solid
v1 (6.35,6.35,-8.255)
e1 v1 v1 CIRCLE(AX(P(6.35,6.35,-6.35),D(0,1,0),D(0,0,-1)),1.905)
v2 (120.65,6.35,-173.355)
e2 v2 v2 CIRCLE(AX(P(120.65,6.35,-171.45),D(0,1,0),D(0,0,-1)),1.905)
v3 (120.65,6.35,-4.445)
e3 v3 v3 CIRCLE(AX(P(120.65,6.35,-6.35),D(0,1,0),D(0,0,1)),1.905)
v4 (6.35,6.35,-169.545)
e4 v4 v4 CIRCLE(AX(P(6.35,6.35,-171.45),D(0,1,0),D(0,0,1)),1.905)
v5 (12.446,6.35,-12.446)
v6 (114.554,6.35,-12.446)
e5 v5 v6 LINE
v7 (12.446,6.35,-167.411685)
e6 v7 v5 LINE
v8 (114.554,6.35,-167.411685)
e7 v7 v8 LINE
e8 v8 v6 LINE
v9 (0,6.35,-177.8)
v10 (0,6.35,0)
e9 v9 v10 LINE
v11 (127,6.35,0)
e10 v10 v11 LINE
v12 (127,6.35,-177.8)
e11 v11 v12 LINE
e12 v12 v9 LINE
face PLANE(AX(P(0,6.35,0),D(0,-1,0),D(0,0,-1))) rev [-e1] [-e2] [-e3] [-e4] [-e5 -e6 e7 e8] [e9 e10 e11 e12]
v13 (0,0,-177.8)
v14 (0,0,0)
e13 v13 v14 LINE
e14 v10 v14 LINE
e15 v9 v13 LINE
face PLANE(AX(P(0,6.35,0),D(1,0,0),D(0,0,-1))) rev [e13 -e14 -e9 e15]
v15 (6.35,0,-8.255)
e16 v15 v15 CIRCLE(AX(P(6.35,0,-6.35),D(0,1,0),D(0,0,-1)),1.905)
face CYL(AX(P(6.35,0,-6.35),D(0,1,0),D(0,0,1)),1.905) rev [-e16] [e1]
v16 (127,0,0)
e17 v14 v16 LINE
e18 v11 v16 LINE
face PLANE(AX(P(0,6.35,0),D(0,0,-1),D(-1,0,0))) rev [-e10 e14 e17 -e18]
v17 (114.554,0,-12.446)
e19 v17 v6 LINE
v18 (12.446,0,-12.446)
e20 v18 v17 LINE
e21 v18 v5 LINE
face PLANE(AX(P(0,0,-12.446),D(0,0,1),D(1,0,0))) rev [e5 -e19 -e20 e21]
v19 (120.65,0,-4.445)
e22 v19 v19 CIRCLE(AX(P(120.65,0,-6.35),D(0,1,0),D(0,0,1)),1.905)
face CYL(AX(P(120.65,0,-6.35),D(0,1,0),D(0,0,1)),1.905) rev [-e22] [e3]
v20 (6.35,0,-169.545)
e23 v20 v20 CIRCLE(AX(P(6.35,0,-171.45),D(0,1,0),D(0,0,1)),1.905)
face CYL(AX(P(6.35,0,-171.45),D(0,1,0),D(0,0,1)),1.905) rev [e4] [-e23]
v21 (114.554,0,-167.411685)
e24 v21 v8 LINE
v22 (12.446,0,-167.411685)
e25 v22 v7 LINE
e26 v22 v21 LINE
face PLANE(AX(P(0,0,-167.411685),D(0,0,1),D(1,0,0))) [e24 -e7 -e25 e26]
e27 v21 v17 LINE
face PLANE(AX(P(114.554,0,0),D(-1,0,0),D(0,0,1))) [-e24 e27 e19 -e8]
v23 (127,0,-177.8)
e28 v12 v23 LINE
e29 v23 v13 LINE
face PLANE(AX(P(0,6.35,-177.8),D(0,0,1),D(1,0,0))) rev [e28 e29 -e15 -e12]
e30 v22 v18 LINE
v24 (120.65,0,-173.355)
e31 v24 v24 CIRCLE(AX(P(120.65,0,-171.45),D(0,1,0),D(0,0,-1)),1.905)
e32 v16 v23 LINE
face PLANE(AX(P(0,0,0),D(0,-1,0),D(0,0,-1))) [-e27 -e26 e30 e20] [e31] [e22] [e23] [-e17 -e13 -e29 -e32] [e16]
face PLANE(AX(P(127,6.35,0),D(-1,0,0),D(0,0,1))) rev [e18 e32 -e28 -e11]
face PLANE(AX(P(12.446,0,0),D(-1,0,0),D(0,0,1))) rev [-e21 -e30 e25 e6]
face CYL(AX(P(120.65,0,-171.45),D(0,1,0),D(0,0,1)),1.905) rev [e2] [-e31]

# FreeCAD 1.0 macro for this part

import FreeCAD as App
import Part
import Sketcher
Q = App.Units.Quantity

doc = App.newDocument("Part")
body = doc.addObject("PartDesign::Body", "Body")

# Sketch on XZ plane
sketch1 = body.newObject("Sketcher::SketchObject", "Sketch")
sketch1.AttachmentSupport = (doc.getObject("XZ_Plane"), [""])
sketch1.MapMode = "FlatFace"
sketch1.addGeometry([
    Part.LineSegment(App.Vector(0, -177.8, 0), App.Vector(0, 0, 0)),
    Part.LineSegment(App.Vector(0, 0, 0), App.Vector(127, 0, 0)),
    Part.LineSegment(App.Vector(127, 0, 0), App.Vector(127, -177.8, 0)),
    Part.LineSegment(App.Vector(127, -177.8, 0), App.Vector(0, -177.8, 0)),
], False)
sketch1.addConstraint([
    Sketcher.Constraint("Coincident", 0, 2, 1, 1),
    Sketcher.Constraint("Coincident", 1, 2, 2, 1),
    Sketcher.Constraint("Coincident", 2, 2, 3, 1),
    Sketcher.Constraint("Coincident", 3, 2, 0, 1),
    Sketcher.Constraint("Vertical", 0),
    Sketcher.Constraint("Horizontal", 1),
    Sketcher.Constraint("Vertical", 2),
    Sketcher.Constraint("Horizontal", 3),
    Sketcher.Constraint("Coincident", 0, 2, -1, 1),
    Sketcher.Constraint("DistanceX", 1, 1, 1, 2, Q("5 in")),
    Sketcher.Constraint("DistanceY", 0, 1, 0, 2, Q("7 in")),
])
pad1 = body.newObject("PartDesign::Pad", "Pad")
pad1.Profile = sketch1
pad1.Length = Q("0.25 in")
pad1.Reversed = True

# Sketch on XZ plane
sketch2 = body.newObject("Sketcher::SketchObject", "Sketch001")
sketch2.AttachmentSupport = (doc.getObject("XZ_Plane"), [""])
sketch2.MapMode = "FlatFace"
sketch2.AttachmentOffset = App.Placement(App.Vector(0, 0, -0.25 * 25.4), App.Rotation())
sketch2.addGeometry([
    Part.LineSegment(App.Vector(12.446, -167.411685, 0), App.Vector(12.446, -12.446, 0)),
    Part.LineSegment(App.Vector(12.446, -12.446, 0), App.Vector(114.554, -12.446, 0)),
    Part.LineSegment(App.Vector(114.554, -12.446, 0), App.Vector(114.554, -167.411685, 0)),
    Part.LineSegment(App.Vector(114.554, -167.411685, 0), App.Vector(12.446, -167.411685, 0)),
], False)
sketch2.addConstraint([
    Sketcher.Constraint("Coincident", 0, 2, 1, 1),
    Sketcher.Constraint("Coincident", 1, 2, 2, 1),
    Sketcher.Constraint("Coincident", 2, 2, 3, 1),
    Sketcher.Constraint("Coincident", 3, 2, 0, 1),
    Sketcher.Constraint("Vertical", 0),
    Sketcher.Constraint("Horizontal", 1),
    Sketcher.Constraint("Vertical", 2),
    Sketcher.Constraint("Horizontal", 3),
    Sketcher.Constraint("DistanceX", 1, 1, 1, 2, Q("4.02 in")),
    Sketcher.Constraint("DistanceX", -1, 1, 0, 2, Q("0.49 in")),
    Sketcher.Constraint("DistanceY", 0, 2, -1, 1, Q("0.49 in")),
    Sketcher.Constraint("DistanceY", 0, 1, 0, 2, 154.965685),
])
pocket1 = body.newObject("PartDesign::Pocket", "Pocket")
pocket1.Profile = sketch2
pocket1.Type = "ThroughAll"
pocket1.Reversed = True

# Sketch on XZ plane
sketch3 = body.newObject("Sketcher::SketchObject", "Sketch002")
sketch3.AttachmentSupport = (doc.getObject("XZ_Plane"), [""])
sketch3.MapMode = "FlatFace"
sketch3.AttachmentOffset = App.Placement(App.Vector(0, 0, -0.25 * 25.4), App.Rotation())
sketch3.addGeometry([
    Part.Circle(App.Vector(6.35, -171.45, 0), App.Vector(0, 0, 1), 1.905),
    Part.Circle(App.Vector(6.35, -6.35, 0), App.Vector(0, 0, 1), 1.905),
    Part.Circle(App.Vector(120.65, -6.35, 0), App.Vector(0, 0, 1), 1.905),
    Part.Circle(App.Vector(120.65, -171.45, 0), App.Vector(0, 0, 1), 1.905),
], False)
sketch3.addConstraint([
    Sketcher.Constraint("Equal", 0, 1),
    Sketcher.Constraint("Equal", 1, 2),
    Sketcher.Constraint("Equal", 2, 3),
    Sketcher.Constraint("Horizontal", 1, 3, 2, 3),
    Sketcher.Constraint("Horizontal", 0, 3, 3, 3),
    Sketcher.Constraint("Vertical", 0, 3, 1, 3),
    Sketcher.Constraint("Vertical", 2, 3, 3, 3),
    Sketcher.Constraint("Diameter", 0, Q("0.15 in")),
    Sketcher.Constraint("DistanceY", 0, 3, 1, 3, Q("6.5 in")),
    Sketcher.Constraint("DistanceX", 1, 3, 2, 3, Q("4.5 in")),
    Sketcher.Constraint("DistanceX", -1, 1, 0, 3, Q("0.25 in")),
    Sketcher.Constraint("DistanceY", 0, 3, -1, 1, Q("6.75 in")),
])
pocket2 = body.newObject("PartDesign::Pocket", "Pocket001")
pocket2.Profile = sketch3
pocket2.Type = "ThroughAll"
pocket2.Reversed = True

doc.recompute()
